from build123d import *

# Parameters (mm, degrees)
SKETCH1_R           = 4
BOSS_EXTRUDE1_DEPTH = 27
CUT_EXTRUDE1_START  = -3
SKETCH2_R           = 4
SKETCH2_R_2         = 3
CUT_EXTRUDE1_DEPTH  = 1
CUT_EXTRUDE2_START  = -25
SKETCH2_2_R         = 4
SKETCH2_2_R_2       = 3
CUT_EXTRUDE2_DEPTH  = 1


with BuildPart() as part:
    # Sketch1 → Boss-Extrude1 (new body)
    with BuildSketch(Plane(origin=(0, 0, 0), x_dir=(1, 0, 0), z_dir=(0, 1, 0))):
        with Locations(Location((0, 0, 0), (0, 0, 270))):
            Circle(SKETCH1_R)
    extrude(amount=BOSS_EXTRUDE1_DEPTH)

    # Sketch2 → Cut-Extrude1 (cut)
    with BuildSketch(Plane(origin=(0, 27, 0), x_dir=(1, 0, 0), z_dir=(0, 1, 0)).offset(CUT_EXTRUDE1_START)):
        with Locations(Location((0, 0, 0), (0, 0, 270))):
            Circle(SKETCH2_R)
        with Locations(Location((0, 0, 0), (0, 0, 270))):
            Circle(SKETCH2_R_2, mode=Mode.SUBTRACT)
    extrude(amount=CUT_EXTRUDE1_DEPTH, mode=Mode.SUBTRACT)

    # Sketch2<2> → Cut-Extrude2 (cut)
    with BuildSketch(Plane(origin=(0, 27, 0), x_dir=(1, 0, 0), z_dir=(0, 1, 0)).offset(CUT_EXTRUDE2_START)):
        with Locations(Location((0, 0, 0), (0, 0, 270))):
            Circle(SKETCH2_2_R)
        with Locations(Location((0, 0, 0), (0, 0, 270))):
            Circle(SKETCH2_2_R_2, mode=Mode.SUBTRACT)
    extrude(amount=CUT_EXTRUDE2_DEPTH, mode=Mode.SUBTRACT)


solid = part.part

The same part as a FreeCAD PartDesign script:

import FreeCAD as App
import Part
import Sketcher

V = App.Vector

doc = App.newDocument("Part")
params = doc.addObject("Spreadsheet::Sheet", "Params")
for row, (alias, value) in enumerate([
    ("sketch1_diameter", "8 mm"),
    ("pad1_length", "27 mm"),
    ("sketch2_diameter", "8 mm"),
    ("sketch2_diameter2", "6 mm"),
    ("pocket1_length", "1 mm"),
    ("sketch3_diameter", "8 mm"),
    ("sketch3_diameter2", "6 mm"),
    ("pocket2_length", "1 mm"),
], start=1):
    params.set(f"A{row}", alias)
    params.set(f"B{row}", "=" + value)
    params.setAlias(f"B{row}", alias)

body = doc.addObject("PartDesign::Body", "Body")

# Sketch on XZ plane
sketch1 = body.newObject("Sketcher::SketchObject", "Sketch")
sketch1.AttachmentSupport = (doc.getObject("XZ_Plane"), [""])
sketch1.MapMode = "FlatFace"
sketch1.addGeometry(Part.Circle(V(0, 0, 0), V(0, 0, 1), 4), False)
sketch1.addConstraint([
    Sketcher.Constraint("Coincident", 0, 3, -1, 1),
    Sketcher.Constraint("Diameter", 0, 8.0),
])
sketch1.setExpression("Constraints[1]", "Params.sketch1_diameter")
pad1 = body.newObject("PartDesign::Pad", "Pad")
pad1.Profile = sketch1
pad1.setExpression("Length", "Params.pad1_length")
pad1.Reversed = True

# Sketch on XZ plane
sketch2 = body.newObject("Sketcher::SketchObject", "Sketch001")
sketch2.AttachmentSupport = (doc.getObject("XZ_Plane"), [""])
sketch2.MapMode = "FlatFace"
sketch2.AttachmentOffset = App.Placement(V(0, 0, -24), App.Rotation())
sketch2.addGeometry([
    Part.Circle(V(0, 0, 0), V(0, 0, 1), 4),
    Part.Circle(V(0, 0, 0), V(0, 0, 1), 3),
], False)
sketch2.addConstraint([
    Sketcher.Constraint("Coincident", 0, 3, -1, 1),
    Sketcher.Constraint("Coincident", 1, 3, -1, 1),
    Sketcher.Constraint("Diameter", 0, 8.0),
    Sketcher.Constraint("Diameter", 1, 6.0),
])
sketch2.setExpression("Constraints[2]", "Params.sketch2_diameter")
sketch2.setExpression("Constraints[3]", "Params.sketch2_diameter2")
pocket1 = body.newObject("PartDesign::Pocket", "Pocket")
pocket1.Profile = sketch2
pocket1.setExpression("Length", "Params.pocket1_length")

# Sketch on XZ plane
sketch3 = body.newObject("Sketcher::SketchObject", "Sketch002")
sketch3.AttachmentSupport = (doc.getObject("XZ_Plane"), [""])
sketch3.MapMode = "FlatFace"
sketch3.AttachmentOffset = App.Placement(V(0, 0, -2), App.Rotation())
sketch3.addGeometry([
    Part.Circle(V(0, 0, 0), V(0, 0, 1), 4),
    Part.Circle(V(0, 0, 0), V(0, 0, 1), 3),
], False)
sketch3.addConstraint([
    Sketcher.Constraint("Coincident", 0, 3, -1, 1),
    Sketcher.Constraint("Coincident", 1, 3, -1, 1),
    Sketcher.Constraint("Diameter", 0, 8.0),
    Sketcher.Constraint("Diameter", 1, 6.0),
])
sketch3.setExpression("Constraints[2]", "Params.sketch3_diameter")
sketch3.setExpression("Constraints[3]", "Params.sketch3_diameter2")
pocket2 = body.newObject("PartDesign::Pocket", "Pocket001")
pocket2.Profile = sketch3
pocket2.setExpression("Length", "Params.pocket2_length")

doc.recompute()
